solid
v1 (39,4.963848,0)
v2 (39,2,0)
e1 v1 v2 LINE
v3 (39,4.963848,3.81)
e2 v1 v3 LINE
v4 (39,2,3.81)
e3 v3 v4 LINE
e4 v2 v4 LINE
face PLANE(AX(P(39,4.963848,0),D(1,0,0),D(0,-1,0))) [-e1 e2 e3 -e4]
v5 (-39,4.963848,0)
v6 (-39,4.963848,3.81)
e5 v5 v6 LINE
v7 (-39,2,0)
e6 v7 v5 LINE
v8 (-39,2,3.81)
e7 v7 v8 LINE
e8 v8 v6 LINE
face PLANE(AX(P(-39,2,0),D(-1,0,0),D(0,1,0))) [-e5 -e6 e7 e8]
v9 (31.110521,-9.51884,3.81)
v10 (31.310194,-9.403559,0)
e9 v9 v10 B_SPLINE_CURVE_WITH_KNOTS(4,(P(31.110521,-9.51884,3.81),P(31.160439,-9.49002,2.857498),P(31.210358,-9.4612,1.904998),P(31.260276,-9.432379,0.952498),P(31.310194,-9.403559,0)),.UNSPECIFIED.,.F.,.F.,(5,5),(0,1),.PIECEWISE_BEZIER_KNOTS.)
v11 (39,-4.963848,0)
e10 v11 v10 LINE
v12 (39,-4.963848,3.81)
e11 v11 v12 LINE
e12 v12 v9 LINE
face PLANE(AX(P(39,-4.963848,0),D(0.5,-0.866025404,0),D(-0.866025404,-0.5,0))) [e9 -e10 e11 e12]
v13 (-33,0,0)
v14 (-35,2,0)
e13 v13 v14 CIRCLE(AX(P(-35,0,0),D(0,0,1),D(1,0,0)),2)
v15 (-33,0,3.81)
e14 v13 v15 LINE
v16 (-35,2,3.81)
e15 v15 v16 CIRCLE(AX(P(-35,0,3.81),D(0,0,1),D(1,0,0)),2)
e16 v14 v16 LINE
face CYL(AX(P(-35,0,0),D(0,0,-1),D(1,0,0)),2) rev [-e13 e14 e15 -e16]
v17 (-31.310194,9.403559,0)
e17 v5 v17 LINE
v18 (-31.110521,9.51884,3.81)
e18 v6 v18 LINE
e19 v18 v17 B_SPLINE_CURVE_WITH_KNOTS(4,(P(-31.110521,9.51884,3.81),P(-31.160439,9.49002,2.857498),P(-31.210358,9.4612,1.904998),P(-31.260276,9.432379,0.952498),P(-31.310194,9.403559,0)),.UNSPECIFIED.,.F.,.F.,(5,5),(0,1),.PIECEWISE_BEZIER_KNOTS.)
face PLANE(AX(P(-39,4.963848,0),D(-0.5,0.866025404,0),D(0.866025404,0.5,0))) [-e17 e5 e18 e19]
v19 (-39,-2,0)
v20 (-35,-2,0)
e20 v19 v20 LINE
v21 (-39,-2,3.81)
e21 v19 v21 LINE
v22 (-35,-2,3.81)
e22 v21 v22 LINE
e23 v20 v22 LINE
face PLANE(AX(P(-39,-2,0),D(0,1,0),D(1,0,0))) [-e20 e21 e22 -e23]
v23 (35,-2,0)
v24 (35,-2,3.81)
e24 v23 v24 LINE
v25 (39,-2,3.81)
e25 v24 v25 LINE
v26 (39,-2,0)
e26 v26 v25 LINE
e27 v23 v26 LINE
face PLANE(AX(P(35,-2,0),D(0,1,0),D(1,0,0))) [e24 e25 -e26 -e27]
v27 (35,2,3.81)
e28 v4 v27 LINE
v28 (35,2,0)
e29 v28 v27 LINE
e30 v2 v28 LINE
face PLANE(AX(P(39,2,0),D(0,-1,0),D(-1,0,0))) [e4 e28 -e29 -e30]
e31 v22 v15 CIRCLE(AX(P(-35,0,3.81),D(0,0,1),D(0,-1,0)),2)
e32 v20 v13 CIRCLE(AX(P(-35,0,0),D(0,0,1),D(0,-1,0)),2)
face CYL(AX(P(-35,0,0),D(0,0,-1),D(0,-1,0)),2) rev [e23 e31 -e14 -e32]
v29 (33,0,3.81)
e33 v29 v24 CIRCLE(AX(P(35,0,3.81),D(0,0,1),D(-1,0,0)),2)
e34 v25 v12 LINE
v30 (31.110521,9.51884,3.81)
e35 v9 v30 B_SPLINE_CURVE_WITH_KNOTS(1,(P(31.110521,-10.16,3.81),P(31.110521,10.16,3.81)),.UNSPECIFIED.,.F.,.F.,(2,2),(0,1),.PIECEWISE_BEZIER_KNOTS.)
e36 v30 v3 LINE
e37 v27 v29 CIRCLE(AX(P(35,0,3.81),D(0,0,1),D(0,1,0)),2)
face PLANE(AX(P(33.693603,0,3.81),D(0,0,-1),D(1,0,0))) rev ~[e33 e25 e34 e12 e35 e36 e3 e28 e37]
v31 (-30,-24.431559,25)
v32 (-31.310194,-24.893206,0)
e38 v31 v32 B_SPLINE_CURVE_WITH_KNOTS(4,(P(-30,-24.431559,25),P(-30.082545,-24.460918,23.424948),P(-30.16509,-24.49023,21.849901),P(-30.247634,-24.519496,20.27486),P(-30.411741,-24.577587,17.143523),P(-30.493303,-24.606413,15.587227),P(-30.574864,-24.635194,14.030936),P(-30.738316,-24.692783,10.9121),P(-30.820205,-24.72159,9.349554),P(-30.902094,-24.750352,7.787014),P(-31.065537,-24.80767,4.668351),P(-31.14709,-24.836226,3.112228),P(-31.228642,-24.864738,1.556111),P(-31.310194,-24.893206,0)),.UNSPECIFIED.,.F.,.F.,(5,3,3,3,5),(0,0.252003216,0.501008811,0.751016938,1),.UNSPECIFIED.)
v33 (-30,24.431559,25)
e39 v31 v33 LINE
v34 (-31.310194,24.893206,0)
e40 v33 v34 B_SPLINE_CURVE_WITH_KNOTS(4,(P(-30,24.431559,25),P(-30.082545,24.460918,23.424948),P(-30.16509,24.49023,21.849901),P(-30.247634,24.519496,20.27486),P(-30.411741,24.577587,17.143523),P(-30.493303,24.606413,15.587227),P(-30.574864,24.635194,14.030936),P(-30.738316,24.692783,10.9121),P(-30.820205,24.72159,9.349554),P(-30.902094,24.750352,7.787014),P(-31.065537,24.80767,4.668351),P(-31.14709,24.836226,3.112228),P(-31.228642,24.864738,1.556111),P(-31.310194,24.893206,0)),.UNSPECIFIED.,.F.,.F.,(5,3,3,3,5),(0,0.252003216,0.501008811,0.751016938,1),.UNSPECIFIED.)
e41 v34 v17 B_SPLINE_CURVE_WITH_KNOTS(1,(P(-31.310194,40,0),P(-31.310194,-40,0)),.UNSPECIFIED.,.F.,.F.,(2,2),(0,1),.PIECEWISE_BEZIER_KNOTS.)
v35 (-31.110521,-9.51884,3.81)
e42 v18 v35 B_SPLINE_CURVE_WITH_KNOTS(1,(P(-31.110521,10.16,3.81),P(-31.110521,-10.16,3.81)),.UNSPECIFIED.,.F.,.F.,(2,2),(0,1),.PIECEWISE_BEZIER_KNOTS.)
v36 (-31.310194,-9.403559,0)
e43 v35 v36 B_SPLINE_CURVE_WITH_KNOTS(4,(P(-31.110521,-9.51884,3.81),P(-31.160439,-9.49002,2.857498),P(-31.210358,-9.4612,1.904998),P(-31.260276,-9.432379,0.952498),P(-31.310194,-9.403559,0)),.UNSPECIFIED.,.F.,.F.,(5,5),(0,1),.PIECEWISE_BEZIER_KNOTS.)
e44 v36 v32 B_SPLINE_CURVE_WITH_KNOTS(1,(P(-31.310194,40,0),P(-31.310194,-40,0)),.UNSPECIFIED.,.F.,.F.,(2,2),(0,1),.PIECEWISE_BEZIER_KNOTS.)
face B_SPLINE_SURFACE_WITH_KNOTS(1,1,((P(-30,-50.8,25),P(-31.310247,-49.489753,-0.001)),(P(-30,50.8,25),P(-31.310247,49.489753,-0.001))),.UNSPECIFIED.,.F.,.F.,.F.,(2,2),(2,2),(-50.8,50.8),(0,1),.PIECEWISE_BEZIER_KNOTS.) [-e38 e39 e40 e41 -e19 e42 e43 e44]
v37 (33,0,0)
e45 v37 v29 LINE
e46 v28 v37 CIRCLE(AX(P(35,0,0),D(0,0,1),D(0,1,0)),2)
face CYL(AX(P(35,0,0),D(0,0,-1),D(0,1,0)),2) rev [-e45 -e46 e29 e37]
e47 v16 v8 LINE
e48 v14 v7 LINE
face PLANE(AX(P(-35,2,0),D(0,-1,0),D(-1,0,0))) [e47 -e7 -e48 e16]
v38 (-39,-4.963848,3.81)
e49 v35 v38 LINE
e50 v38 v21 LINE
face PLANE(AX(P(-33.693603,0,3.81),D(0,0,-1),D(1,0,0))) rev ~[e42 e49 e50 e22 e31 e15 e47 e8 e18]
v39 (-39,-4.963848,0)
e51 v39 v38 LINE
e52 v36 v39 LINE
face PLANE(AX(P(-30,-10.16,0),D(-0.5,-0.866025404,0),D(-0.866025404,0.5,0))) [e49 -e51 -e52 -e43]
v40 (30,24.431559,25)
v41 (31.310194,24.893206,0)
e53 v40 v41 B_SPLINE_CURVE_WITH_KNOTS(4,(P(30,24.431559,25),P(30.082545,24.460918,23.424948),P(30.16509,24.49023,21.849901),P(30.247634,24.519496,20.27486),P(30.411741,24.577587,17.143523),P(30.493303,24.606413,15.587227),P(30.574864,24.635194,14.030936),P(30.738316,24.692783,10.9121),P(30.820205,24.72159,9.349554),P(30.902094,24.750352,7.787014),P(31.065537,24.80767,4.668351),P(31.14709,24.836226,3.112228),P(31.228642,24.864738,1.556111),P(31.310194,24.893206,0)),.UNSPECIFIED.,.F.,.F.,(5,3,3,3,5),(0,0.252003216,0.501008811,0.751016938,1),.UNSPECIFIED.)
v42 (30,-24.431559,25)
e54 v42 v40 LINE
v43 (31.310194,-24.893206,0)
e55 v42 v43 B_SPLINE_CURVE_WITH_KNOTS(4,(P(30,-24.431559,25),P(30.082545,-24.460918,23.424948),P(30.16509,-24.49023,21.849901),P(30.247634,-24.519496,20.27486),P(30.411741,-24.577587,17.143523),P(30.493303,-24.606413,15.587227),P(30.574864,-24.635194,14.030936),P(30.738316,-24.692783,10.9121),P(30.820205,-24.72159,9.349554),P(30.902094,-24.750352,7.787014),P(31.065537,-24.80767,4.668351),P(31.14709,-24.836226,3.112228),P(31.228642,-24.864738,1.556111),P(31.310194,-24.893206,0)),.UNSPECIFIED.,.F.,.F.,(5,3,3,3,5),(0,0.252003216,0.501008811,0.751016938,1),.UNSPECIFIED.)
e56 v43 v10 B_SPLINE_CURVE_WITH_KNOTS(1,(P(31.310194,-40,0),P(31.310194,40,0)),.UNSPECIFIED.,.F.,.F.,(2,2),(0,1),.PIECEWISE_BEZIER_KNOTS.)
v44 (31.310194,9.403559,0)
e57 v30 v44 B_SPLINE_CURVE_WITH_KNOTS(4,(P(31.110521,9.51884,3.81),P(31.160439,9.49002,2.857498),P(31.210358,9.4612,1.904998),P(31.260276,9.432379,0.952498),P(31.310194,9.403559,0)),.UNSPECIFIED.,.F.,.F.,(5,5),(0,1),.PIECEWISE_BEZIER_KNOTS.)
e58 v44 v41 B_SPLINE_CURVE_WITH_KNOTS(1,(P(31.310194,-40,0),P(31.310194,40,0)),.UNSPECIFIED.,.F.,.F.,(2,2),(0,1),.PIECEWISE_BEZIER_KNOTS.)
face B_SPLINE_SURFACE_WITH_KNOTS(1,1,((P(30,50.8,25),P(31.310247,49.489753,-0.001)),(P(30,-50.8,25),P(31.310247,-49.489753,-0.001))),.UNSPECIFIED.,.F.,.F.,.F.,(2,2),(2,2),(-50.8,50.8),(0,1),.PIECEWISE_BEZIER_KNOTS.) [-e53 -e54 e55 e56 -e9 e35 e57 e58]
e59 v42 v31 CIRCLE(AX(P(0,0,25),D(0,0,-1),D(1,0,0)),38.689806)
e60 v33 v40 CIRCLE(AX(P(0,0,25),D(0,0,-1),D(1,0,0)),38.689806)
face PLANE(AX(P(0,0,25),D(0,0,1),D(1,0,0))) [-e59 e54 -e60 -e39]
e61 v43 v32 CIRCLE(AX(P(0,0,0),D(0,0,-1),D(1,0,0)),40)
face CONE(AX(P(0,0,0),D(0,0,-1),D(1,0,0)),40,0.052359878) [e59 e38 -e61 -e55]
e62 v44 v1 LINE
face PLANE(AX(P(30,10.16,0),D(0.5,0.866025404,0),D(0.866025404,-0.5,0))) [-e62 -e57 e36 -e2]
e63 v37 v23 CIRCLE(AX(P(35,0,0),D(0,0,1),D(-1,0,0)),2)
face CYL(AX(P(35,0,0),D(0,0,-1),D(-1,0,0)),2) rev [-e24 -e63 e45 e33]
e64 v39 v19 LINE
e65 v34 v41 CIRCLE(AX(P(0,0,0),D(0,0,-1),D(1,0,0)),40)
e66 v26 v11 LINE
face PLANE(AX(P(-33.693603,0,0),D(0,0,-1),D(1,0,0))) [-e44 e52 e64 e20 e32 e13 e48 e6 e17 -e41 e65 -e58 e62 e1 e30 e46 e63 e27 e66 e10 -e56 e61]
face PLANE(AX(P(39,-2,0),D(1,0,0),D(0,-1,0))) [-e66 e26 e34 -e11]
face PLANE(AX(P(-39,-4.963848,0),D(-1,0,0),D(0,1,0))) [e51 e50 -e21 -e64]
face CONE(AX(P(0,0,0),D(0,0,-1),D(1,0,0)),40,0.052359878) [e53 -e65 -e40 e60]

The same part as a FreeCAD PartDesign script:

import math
import FreeCAD as App
import Part
import Sketcher
from FreeCAD import Vector
Q = App.Units.Quantity

doc = App.newDocument("Part")
params = doc.addObject("Spreadsheet::Sheet", "Params")
for row, (alias, value) in enumerate([
    ("pad1_length", "25 mm"),
    ("pad1_taper", "-3 deg"),
    ("sketch2_width", "1 in"),
    ("sketch2_height", "4 in"),
    ("pocket1_length", "25.001 mm"),
    ("pocket1_taper", "-3 deg"),
    ("sketch3_height", "0.8 in"),
    ("pad2_length", "0.15 in"),
], start=1):
    params.set(f"A{row}", alias)
    params.set(f"B{row}", "=" + value)
    params.setAlias(f"B{row}", alias)

body = doc.addObject("PartDesign::Body", "Body")

# Sketch on XY plane
sketch1 = body.newObject("Sketcher::SketchObject", "Sketch")
sketch1.AttachmentSupport = (doc.getObject("XY_Plane"), [""])
sketch1.MapMode = "FlatFace"
sketch1.addGeometry(Part.Circle(Vector(0, 0, 0), Vector(0, 0, 1), 40), False)
sketch1.addConstraint([
    Sketcher.Constraint("Coincident", 0, 3, -1, 1),
    Sketcher.Constraint("Diameter", 0, 80.0),
])
pad1 = body.newObject("PartDesign::Pad", "Pad")
pad1.Profile = sketch1
pad1.setExpression("Length", "Params.pad1_length")
pad1.setExpression("TaperAngle", "Params.pad1_taper")

# Sketch on XY plane
sketch2 = body.newObject("Sketcher::SketchObject", "Sketch001")
sketch2.AttachmentSupport = (doc.getObject("XY_Plane"), [""])
sketch2.MapMode = "FlatFace"
sketch2.AttachmentOffset = App.Placement(Vector(0, 0, 25), App.Rotation())
sketch2.addGeometry([
    Part.LineSegment(Vector(-55.4, 50.8, 0), Vector(-55.4, -50.8, 0)),  # 0
    Part.LineSegment(Vector(-55.4, -50.8, 0), Vector(-30, -50.8, 0)),  # 1
    Part.LineSegment(Vector(-30, -50.8, 0), Vector(-30, 50.8, 0)),  # 2
    Part.LineSegment(Vector(-30, 50.8, 0), Vector(-55.4, 50.8, 0)),  # 3
    Part.LineSegment(Vector(30, 50.8, 0), Vector(30, -50.8, 0)),  # 4
    Part.LineSegment(Vector(30, -50.8, 0), Vector(55.4, -50.8, 0)),  # 5
    Part.LineSegment(Vector(55.4, -50.8, 0), Vector(55.4, 50.8, 0)),  # 6
    Part.LineSegment(Vector(55.4, 50.8, 0), Vector(30, 50.8, 0)),  # 7
], False)
sketch2.addConstraint([
    Sketcher.Constraint("Coincident", 0, 2, 1, 1),
    Sketcher.Constraint("Coincident", 1, 2, 2, 1),
    Sketcher.Constraint("Coincident", 2, 2, 3, 1),
    Sketcher.Constraint("Coincident", 3, 2, 0, 1),
    Sketcher.Constraint("Coincident", 4, 2, 5, 1),
    Sketcher.Constraint("Coincident", 5, 2, 6, 1),
    Sketcher.Constraint("Coincident", 6, 2, 7, 1),
    Sketcher.Constraint("Coincident", 7, 2, 4, 1),
    Sketcher.Constraint("Vertical", 0),
    Sketcher.Constraint("Horizontal", 1),
    Sketcher.Constraint("Vertical", 2),
    Sketcher.Constraint("Horizontal", 3),
    Sketcher.Constraint("Vertical", 4),
    Sketcher.Constraint("Horizontal", 5),
    Sketcher.Constraint("Vertical", 6),
    Sketcher.Constraint("Horizontal", 7),
    Sketcher.Constraint("Symmetric", 2, 2, 4, 2, -1, 1),
    Sketcher.Constraint("Symmetric", 0, 2, 6, 2, -1, 1),
    Sketcher.Constraint("Horizontal", 1, 2, 4, 2),
    Sketcher.Constraint("DistanceX", 1, 1, 1, 2, Q("1 in")),
    Sketcher.Constraint("DistanceY", 0, 2, 0, 1, Q("4 in")),
    Sketcher.Constraint("DistanceX", 0, 2, -1, 1, 55.4),
])
sketch2.setExpression("Constraints[19]", "Params.sketch2_width")
sketch2.setExpression("Constraints[20]", "Params.sketch2_height")
pocket1 = body.newObject("PartDesign::Pocket", "Pocket")
pocket1.Profile = sketch2
pocket1.setExpression("Length", "Params.pocket1_length")
pocket1.setExpression("TaperAngle", "Params.pocket1_taper")

# Sketch on XY plane
sketch3 = body.newObject("Sketcher::SketchObject", "Sketch002")
sketch3.AttachmentSupport = (doc.getObject("XY_Plane"), [""])
sketch3.MapMode = "FlatFace"
sketch3.addGeometry([
    Part.ArcOfCircle(Part.Circle(Vector(-35, 0, 0), Vector(0, 0, 1), 2), math.radians(-90), math.radians(0)),  # 0
    Part.ArcOfCircle(Part.Circle(Vector(-35, 0, 0), Vector(0, 0, 1), 2), math.radians(0), math.radians(90)),  # 1
    Part.LineSegment(Vector(-35, 2, 0), Vector(-39, 2, 0)),  # 2
    Part.LineSegment(Vector(-39, 2, 0), Vector(-39, 4.963848, 0)),  # 3
    Part.LineSegment(Vector(-39, 4.963848, 0), Vector(-30, 10.16, 0)),  # 4
    Part.LineSegment(Vector(-30, 10.16, 0), Vector(-30, -10.16, 0)),  # 5
    Part.LineSegment(Vector(-30, -10.16, 0), Vector(-39, -4.963848, 0)),  # 6
    Part.LineSegment(Vector(-39, -4.963848, 0), Vector(-39, -2, 0)),  # 7
    Part.LineSegment(Vector(-39, -2, 0), Vector(-35, -2, 0)),  # 8
    Part.ArcOfCircle(Part.Circle(Vector(35, 0, 0), Vector(0, 0, 1), 2), math.radians(180), math.radians(270)),  # 9
    Part.LineSegment(Vector(35, -2, 0), Vector(39, -2, 0)),  # 10
    Part.LineSegment(Vector(39, -2, 0), Vector(39, -4.963848, 0)),  # 11
    Part.LineSegment(Vector(39, -4.963848, 0), Vector(30, -10.16, 0)),  # 12
    Part.LineSegment(Vector(30, -10.16, 0), Vector(30, 10.16, 0)),  # 13
    Part.LineSegment(Vector(30, 10.16, 0), Vector(39, 4.963848, 0)),  # 14
    Part.LineSegment(Vector(39, 4.963848, 0), Vector(39, 2, 0)),  # 15
    Part.LineSegment(Vector(39, 2, 0), Vector(35, 2, 0)),  # 16
    Part.ArcOfCircle(Part.Circle(Vector(35, 0, 0), Vector(0, 0, 1), 2), math.radians(90), math.radians(180)),  # 17
], False)
sketch3.addConstraint([
    Sketcher.Constraint("Tangent", 0, 2, 1, 1),
    Sketcher.Constraint("Tangent", 1, 2, 2, 1),
    Sketcher.Constraint("Coincident", 2, 2, 3, 1),
    Sketcher.Constraint("Coincident", 3, 2, 4, 1),
    Sketcher.Constraint("Coincident", 4, 2, 5, 1),
    Sketcher.Constraint("Coincident", 5, 2, 6, 1),
    Sketcher.Constraint("Coincident", 6, 2, 7, 1),
    Sketcher.Constraint("Coincident", 7, 2, 8, 1),
    Sketcher.Constraint("Tangent", 8, 2, 0, 1),
    Sketcher.Constraint("Tangent", 9, 2, 10, 1),
    Sketcher.Constraint("Coincident", 10, 2, 11, 1),
    Sketcher.Constraint("Coincident", 11, 2, 12, 1),
    Sketcher.Constraint("Coincident", 12, 2, 13, 1),
    Sketcher.Constraint("Coincident", 13, 2, 14, 1),
    Sketcher.Constraint("Coincident", 14, 2, 15, 1),
    Sketcher.Constraint("Coincident", 15, 2, 16, 1),
    Sketcher.Constraint("Tangent", 16, 2, 17, 1),
    Sketcher.Constraint("Tangent", 17, 2, 9, 1),
    Sketcher.Constraint("Horizontal", 2),
    Sketcher.Constraint("Vertical", 3),
    Sketcher.Constraint("Vertical", 5),
    Sketcher.Constraint("Vertical", 7),
    Sketcher.Constraint("Horizontal", 8),
    Sketcher.Constraint("Horizontal", 10),
    Sketcher.Constraint("Vertical", 11),
    Sketcher.Constraint("Vertical", 13),
    Sketcher.Constraint("Vertical", 15),
    Sketcher.Constraint("Horizontal", 16),
    Sketcher.Constraint("Equal", 0, 1),
    Sketcher.Constraint("Equal", 1, 9),
    Sketcher.Constraint("Equal", 9, 17),
    Sketcher.Constraint("Symmetric", 0, 3, 9, 3, -1, 1),
    Sketcher.Constraint("Symmetric", 3, 2, 11, 2, -1, 1),
    Sketcher.Constraint("Symmetric", 4, 2, 12, 2, -1, 1),
    Sketcher.Constraint("Symmetric", 6, 2, 14, 2, -1, 1),
    Sketcher.Constraint("Symmetric", 7, 2, 10, 2, -2),
    Sketcher.Constraint("PointOnObject", 0, 2, -1),
    Sketcher.Constraint("PointOnObject", 17, 2, -1),
    Sketcher.Constraint("Parallel", 6, 14),
    Sketcher.Constraint("Horizontal", 6, 2, 11, 2),
    Sketcher.Constraint("Horizontal", 5, 2, 12, 2),
    Sketcher.Constraint("DistanceY", 5, 2, 5, 1, Q("0.8 in")),
    Sketcher.Constraint("Angle", 4, Q("30 deg")),
    Sketcher.Constraint("Radius", 0, 2.0),
    Sketcher.Constraint("DistanceX", 2, 2, 2, 1, 4.0),
    Sketcher.Constraint("DistanceX", 0, 3, -1, 1, 35.0),
    Sketcher.Constraint("DistanceX", 4, 2, -1, 1, 30.0),
])
sketch3.setExpression("Constraints[41]", "Params.sketch3_height")
pad2 = body.newObject("PartDesign::Pad", "Pad001")
pad2.Profile = sketch3
pad2.setExpression("Length", "Params.pad2_length")

doc.recompute()
